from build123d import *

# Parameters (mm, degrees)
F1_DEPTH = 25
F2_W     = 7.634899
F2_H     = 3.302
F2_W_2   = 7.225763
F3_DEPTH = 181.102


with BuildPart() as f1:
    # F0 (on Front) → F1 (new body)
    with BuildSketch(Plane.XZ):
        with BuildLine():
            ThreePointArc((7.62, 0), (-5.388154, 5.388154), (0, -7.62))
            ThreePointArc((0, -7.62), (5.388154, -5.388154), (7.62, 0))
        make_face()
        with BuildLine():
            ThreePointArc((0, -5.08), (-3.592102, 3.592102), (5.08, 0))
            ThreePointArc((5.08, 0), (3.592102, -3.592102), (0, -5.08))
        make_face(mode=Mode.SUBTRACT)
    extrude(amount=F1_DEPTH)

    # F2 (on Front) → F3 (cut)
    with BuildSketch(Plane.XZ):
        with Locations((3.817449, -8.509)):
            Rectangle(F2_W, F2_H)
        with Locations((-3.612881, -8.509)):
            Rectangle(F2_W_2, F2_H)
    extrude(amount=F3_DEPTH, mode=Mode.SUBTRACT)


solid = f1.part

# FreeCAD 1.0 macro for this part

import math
import FreeCAD as App
import Part
import Sketcher

V = App.Vector
Q = App.Units.Quantity


def add_polygon(sketch, points):
    """Adds a closed chain of lines whose ends are joined by coincident constraints."""
    first, n = sketch.GeometryCount, len(points)
    for a, b in zip(points, points[1:] + points[:1]):
        sketch.addGeometry(Part.LineSegment(App.Vector(*a, 0), App.Vector(*b, 0)), False)
    for i in range(n):
        sketch.addConstraint(Sketcher.Constraint("Coincident", first + i, 2, first + (i + 1) % n, 1))

doc = App.newDocument("Part")
body = doc.addObject("PartDesign::Body", "Body")

sketch1 = doc.addObject("Sketcher::SketchObject", "Sketch")
body.addObject(sketch1)
sketch1.AttachmentSupport = (doc.XZ_Plane, [""])
sketch1.MapMode = "FlatFace"
sketch1.addGeometry(Part.ArcOfCircle(Part.Circle(V(0, 0, 0), V(0, 0, 1), 8), math.radians(0), math.radians(270)), False)
sketch1.addGeometry(Part.ArcOfCircle(Part.Circle(V(0, 0, 0), V(0, 0, 1), 8), math.radians(-90), math.radians(0)), False)
sketch1.addGeometry(Part.ArcOfCircle(Part.Circle(V(0, 0, 0), V(0, 0, 1), 5), math.radians(-90), math.radians(0)), False)
sketch1.addGeometry(Part.ArcOfCircle(Part.Circle(V(0, 0, 0), V(0, 0, 1), 5), math.radians(0), math.radians(270)), False)
sketch1.addConstraint(Sketcher.Constraint("Tangent", 0, 1, 1, 2))
sketch1.addConstraint(Sketcher.Constraint("Coincident", 1, 1, 0, 2))
sketch1.addConstraint(Sketcher.Constraint("Tangent", 2, 1, 3, 2))
sketch1.addConstraint(Sketcher.Constraint("Coincident", 3, 1, 2, 2))
sketch1.addConstraint(Sketcher.Constraint("Coincident", 0, 3, -1, 1))
sketch1.addConstraint(Sketcher.Constraint("Coincident", 2, 3, -1, 1))
sketch1.addConstraint(Sketcher.Constraint("PointOnObject", 0, 1, -1))
sketch1.addConstraint(Sketcher.Constraint("PointOnObject", 1, 1, -2))
sketch1.addConstraint(Sketcher.Constraint("PointOnObject", 2, 1, -2))
sketch1.addConstraint(Sketcher.Constraint("PointOnObject", 3, 1, -1))
sketch1.addConstraint(Sketcher.Constraint("Radius", 0, Q("0.3 in")))
sketch1.addConstraint(Sketcher.Constraint("Radius", 2, Q("0.2000001 in")))
pad1 = doc.addObject("PartDesign::Pad", "Pad")
body.addObject(pad1)
pad1.Profile = sketch1
pad1.Length = 25

sketch2 = doc.addObject("Sketcher::SketchObject", "Sketch001")
body.addObject(sketch2)
sketch2.AttachmentSupport = (doc.XZ_Plane, [""])
sketch2.MapMode = "FlatFace"
add_polygon(sketch2, [(-7.2, -6.9), (-7.2, -10.2), (7.6, -10.2), (7.6, -6.9)])
sketch2.addConstraint(Sketcher.Constraint("Vertical", 0))
sketch2.addConstraint(Sketcher.Constraint("Horizontal", 1))
sketch2.addConstraint(Sketcher.Constraint("Vertical", 2))
sketch2.addConstraint(Sketcher.Constraint("Horizontal", 3))
sketch2.addConstraint(Sketcher.Constraint("DistanceY", 0, 2, 0, 1, Q("0.13 in")))
sketch2.addConstraint(Sketcher.Constraint("DistanceY", 0, 2, -1, 1, Q("0.4 in")))
sketch2.addConstraint(Sketcher.Constraint("DistanceX", 1, 1, 1, 2, Q("14.860661 mm")))
sketch2.addConstraint(Sketcher.Constraint("DistanceX", -1, 1, 1, 2, Q("7.634899 mm")))
pocket1 = doc.addObject("PartDesign::Pocket", "Pocket")
body.addObject(pocket1)
pocket1.Profile = sketch2
pocket1.Length = Q("7.13 in")
pocket1.Reversed = True

doc.recompute()
